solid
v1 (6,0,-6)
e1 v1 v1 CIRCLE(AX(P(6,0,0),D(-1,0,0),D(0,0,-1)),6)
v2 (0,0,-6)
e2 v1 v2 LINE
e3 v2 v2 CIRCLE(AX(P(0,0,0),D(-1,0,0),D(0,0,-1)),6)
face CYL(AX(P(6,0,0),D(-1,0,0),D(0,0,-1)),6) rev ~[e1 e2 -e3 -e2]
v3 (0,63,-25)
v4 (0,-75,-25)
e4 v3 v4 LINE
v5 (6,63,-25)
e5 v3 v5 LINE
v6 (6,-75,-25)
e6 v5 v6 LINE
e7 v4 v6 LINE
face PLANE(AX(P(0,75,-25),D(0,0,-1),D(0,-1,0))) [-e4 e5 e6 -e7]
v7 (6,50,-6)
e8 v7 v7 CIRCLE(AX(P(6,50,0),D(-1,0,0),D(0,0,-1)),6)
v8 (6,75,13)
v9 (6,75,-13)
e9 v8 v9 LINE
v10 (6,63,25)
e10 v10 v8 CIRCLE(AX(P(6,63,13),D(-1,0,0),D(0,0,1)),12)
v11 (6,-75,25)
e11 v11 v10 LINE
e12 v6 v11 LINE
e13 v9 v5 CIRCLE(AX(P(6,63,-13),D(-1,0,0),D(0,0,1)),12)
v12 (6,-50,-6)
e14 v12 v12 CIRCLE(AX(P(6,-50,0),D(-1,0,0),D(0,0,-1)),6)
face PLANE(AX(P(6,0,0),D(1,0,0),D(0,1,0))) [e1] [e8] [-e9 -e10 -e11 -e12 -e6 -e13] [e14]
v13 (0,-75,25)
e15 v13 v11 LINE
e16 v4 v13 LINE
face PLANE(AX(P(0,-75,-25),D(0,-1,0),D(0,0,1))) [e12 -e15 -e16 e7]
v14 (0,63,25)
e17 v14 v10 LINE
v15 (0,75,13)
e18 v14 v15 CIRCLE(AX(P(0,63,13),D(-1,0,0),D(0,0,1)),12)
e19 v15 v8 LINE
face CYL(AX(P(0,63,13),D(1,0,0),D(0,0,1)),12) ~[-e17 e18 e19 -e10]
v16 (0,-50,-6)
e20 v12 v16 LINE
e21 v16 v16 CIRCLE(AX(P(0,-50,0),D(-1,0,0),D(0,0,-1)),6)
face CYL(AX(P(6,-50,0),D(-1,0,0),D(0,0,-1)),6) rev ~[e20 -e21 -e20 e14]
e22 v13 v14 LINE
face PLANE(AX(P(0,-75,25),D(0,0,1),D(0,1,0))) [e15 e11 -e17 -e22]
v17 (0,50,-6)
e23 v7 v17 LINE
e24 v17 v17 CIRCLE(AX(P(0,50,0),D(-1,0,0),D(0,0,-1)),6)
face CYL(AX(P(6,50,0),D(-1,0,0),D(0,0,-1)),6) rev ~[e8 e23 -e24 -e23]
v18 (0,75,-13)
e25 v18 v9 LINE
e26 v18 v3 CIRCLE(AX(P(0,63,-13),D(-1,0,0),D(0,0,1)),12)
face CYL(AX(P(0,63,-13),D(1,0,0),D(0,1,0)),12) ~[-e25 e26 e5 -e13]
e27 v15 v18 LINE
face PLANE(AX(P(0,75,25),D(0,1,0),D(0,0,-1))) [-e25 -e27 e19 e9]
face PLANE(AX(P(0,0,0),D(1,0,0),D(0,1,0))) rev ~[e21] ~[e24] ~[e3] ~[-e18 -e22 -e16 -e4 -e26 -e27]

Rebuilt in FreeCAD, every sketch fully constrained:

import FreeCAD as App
import Part
import Sketcher

V = App.Vector
Q = App.Units.Quantity


def edges_at(feature, points):
    """Names of the edges that pass closest to the given points."""
    edges = feature.Shape.Edges
    near = lambda p: min(range(len(edges)), key=lambda i: edges[i].distToShape(Part.Vertex(*p))[0])
    return sorted({f"Edge{near(p) + 1}" for p in points})

doc = App.newDocument("Part")
body = doc.addObject("PartDesign::Body", "Body")

sketch1 = doc.addObject("Sketcher::SketchObject", "Sketch")
body.addObject(sketch1)
sketch1.AttachmentSupport = (doc.YZ_Plane, [""])
sketch1.MapMode = "FlatFace"
sketch1.addGeometry(Part.LineSegment(V(75, 25, 0), V(-75, 25, 0)), False)
sketch1.addGeometry(Part.LineSegment(V(-75, 25, 0), V(-75, -25, 0)), False)
sketch1.addGeometry(Part.LineSegment(V(-75, -25, 0), V(75, -25, 0)), False)
sketch1.addGeometry(Part.LineSegment(V(75, -25, 0), V(75, 25, 0)), False)
sketch1.addConstraint(Sketcher.Constraint("Coincident", 0, 2, 1, 1))
sketch1.addConstraint(Sketcher.Constraint("Coincident", 1, 2, 2, 1))
sketch1.addConstraint(Sketcher.Constraint("Coincident", 2, 2, 3, 1))
sketch1.addConstraint(Sketcher.Constraint("Coincident", 3, 2, 0, 1))
sketch1.addConstraint(Sketcher.Constraint("Horizontal", 0))
sketch1.addConstraint(Sketcher.Constraint("Vertical", 1))
sketch1.addConstraint(Sketcher.Constraint("Horizontal", 2))
sketch1.addConstraint(Sketcher.Constraint("Vertical", 3))
sketch1.addConstraint(Sketcher.Constraint("Symmetric", 0, 2, 2, 2, -1, 1))
sketch1.addConstraint(Sketcher.Constraint("DistanceX", 0, 2, 0, 1, Q("150 mm")))
sketch1.addConstraint(Sketcher.Constraint("DistanceY", 1, 2, 1, 1, Q("50 mm")))
pad1 = doc.addObject("PartDesign::Pad", "Pad")
body.addObject(pad1)
pad1.Profile = sketch1
pad1.Length = 6

sketch2 = doc.addObject("Sketcher::SketchObject", "Sketch001")
body.addObject(sketch2)
sketch2.AttachmentSupport = (doc.YZ_Plane, [""])
sketch2.MapMode = "FlatFace"
sketch2.AttachmentOffset = App.Placement(V(0, 0, 6), App.Rotation())
sketch2.addGeometry(Part.Circle(V(0, 0, 0), V(0, 0, 1), 6), False)
sketch2.addGeometry(Part.Circle(V(50, 0, 0), V(0, 0, 1), 6), False)
sketch2.addGeometry(Part.Circle(V(-50, 0, 0), V(0, 0, 1), 6), False)
sketch2.addConstraint(Sketcher.Constraint("Coincident", 0, 3, -1, 1))
sketch2.addConstraint(Sketcher.Constraint("Equal", 0, 1))
sketch2.addConstraint(Sketcher.Constraint("Equal", 1, 2))
sketch2.addConstraint(Sketcher.Constraint("Symmetric", 1, 3, 2, 3, -1, 1))
sketch2.addConstraint(Sketcher.Constraint("PointOnObject", 1, 3, -1))
sketch2.addConstraint(Sketcher.Constraint("Diameter", 0, Q("12 mm")))
sketch2.addConstraint(Sketcher.Constraint("DistanceX", -1, 1, 1, 3, Q("50 mm")))
doc.recompute()
hole = doc.addObject("PartDesign::Hole", "Hole")
body.addObject(hole)
hole.Profile = sketch2
hole.ThreadType = "None"
hole.Diameter = 12
hole.DepthType = "ThroughAll"
doc.recompute()

fillet = doc.addObject("PartDesign::Fillet", "Fillet")
body.addObject(fillet)
fillet.Base = (hole, edges_at(hole, [(3, 75, 25), (3, 75, -25)]))
fillet.Radius = 12

doc.recompute()
